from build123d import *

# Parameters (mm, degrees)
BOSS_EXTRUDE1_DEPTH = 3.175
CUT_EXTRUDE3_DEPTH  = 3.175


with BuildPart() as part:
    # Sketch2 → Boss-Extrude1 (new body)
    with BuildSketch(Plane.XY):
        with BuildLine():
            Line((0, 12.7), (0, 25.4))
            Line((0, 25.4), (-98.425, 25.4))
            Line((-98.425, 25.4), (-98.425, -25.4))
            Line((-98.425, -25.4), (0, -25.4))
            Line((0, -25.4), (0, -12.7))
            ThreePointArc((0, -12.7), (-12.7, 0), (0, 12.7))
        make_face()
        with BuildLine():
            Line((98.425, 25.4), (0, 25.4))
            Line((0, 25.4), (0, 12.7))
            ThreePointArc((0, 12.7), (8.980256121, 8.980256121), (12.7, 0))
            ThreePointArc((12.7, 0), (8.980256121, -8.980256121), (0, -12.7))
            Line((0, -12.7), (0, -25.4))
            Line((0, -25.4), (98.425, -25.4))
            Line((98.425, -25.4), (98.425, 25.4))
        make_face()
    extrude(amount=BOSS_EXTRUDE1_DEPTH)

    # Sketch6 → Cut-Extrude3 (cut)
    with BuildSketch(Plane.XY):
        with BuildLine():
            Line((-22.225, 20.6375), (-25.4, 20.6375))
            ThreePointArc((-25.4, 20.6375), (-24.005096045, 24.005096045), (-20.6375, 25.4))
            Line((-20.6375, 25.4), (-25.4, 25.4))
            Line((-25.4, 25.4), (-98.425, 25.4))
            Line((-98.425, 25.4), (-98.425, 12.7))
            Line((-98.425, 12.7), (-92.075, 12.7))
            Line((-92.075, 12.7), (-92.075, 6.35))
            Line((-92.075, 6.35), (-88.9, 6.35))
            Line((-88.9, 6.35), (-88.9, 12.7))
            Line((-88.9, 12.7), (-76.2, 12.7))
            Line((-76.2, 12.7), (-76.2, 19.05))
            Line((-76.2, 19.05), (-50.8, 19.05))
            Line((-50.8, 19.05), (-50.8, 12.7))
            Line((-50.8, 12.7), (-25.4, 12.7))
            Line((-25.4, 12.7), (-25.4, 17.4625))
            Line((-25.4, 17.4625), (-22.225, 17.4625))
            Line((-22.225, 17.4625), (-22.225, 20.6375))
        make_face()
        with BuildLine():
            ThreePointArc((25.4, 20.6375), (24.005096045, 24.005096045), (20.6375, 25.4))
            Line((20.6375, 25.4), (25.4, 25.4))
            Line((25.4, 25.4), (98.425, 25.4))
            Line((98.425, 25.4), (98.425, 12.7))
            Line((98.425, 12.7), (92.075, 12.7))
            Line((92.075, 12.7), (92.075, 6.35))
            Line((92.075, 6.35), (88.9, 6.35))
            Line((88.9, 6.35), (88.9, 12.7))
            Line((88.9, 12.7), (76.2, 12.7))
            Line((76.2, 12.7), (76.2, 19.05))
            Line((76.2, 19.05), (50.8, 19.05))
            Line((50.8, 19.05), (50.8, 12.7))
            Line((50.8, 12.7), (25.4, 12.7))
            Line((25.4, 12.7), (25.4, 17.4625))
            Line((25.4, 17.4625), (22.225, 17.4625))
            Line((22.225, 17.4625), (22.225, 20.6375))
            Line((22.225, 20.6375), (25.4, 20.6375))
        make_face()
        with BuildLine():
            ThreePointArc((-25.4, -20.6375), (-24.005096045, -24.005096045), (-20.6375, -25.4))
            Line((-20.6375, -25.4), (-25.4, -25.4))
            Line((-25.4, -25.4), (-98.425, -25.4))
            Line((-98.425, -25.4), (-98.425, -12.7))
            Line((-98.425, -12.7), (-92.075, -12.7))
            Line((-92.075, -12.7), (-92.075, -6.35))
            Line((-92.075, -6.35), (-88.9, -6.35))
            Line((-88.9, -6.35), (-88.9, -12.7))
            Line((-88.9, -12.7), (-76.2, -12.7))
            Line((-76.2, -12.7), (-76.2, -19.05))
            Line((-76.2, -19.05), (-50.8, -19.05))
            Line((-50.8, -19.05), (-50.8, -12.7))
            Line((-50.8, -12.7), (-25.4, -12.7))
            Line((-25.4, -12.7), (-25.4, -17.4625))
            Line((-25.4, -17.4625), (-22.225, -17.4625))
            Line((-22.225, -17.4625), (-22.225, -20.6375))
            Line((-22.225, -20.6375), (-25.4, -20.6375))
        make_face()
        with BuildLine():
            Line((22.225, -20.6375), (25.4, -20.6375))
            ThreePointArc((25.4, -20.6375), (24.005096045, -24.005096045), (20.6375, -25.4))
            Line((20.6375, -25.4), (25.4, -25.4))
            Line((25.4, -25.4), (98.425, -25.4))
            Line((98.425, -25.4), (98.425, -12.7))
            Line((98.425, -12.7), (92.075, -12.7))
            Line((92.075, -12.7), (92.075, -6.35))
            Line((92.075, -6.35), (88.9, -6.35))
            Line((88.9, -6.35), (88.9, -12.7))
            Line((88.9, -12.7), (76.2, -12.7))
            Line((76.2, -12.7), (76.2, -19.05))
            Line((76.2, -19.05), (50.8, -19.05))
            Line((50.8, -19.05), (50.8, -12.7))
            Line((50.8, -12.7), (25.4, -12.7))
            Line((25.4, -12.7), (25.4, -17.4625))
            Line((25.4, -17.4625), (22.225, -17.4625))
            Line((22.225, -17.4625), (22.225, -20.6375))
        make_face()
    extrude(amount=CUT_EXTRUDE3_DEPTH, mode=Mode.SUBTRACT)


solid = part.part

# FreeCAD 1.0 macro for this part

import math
import FreeCAD as App
import Part
import Sketcher
from FreeCAD import Vector
Q = App.Units.Quantity


def add_polygon(sketch, points):
    """Adds a closed chain of lines whose ends are joined by coincident constraints."""
    first, n = sketch.GeometryCount, len(points)
    for a, b in zip(points, points[1:] + points[:1]):
        sketch.addGeometry(Part.LineSegment(App.Vector(*a, 0), App.Vector(*b, 0)), False)
    for i in range(n):
        sketch.addConstraint(Sketcher.Constraint("Coincident", first + i, 2, first + (i + 1) % n, 1))

doc = App.newDocument("Part")
params = doc.addObject("Spreadsheet::Sheet", "Params")
for row, (alias, value) in enumerate([
    ("sketch1_radius", "0.5 in"),
    ("sketch1_height", "2 in"),
    ("sketch1_width", "7.75 in"),
    ("pad1_length", "0.125 in"),
    ("sketch2_width", "1 in"),
    ("sketch2_width2", "0.5 in"),
    ("sketch2_radius", "0.1875 in"),
    ("sketch2_width3", "0.25 in"),
    ("sketch2_width4", "0.125 in"),
    ("pocket1_length", "0.125 in"),
], start=1):
    params.set(f"A{row}", alias)
    params.set(f"B{row}", "=" + value)
    params.setAlias(f"B{row}", alias)

body = doc.addObject("PartDesign::Body", "Body")

# Sketch on XY plane
sketch1 = body.newObject("Sketcher::SketchObject", "Sketch")
sketch1.AttachmentSupport = (doc.getObject("XY_Plane"), [""])
sketch1.MapMode = "FlatFace"
add_polygon(sketch1, [(-98.425, 25.4), (-98.425, -25.4), (98.425, -25.4), (98.425, 25.4)])  # lines 0-3
sketch1.addGeometry(Part.ArcOfCircle(Part.Circle(Vector(0, 0, 0), Vector(0, 0, 1), 12.7), math.radians(90), math.radians(270)), False)  # 4
sketch1.addGeometry(Part.ArcOfCircle(Part.Circle(Vector(0, 0, 0), Vector(0, 0, 1), 12.7), math.radians(0), math.radians(90)), False)  # 5
sketch1.addGeometry(Part.ArcOfCircle(Part.Circle(Vector(0, 0, 0), Vector(0, 0, 1), 12.7), math.radians(-90), math.radians(0)), False)  # 6
sketch1.addConstraint([
    Sketcher.Constraint("Tangent", 4, 1, 5, 2),
    Sketcher.Constraint("Tangent", 5, 1, 6, 2),
    Sketcher.Constraint("Tangent", 6, 1, 4, 2),
    Sketcher.Constraint("Vertical", 0),
    Sketcher.Constraint("Horizontal", 1),
    Sketcher.Constraint("Vertical", 2),
    Sketcher.Constraint("Horizontal", 3),
    Sketcher.Constraint("Coincident", 4, 3, -1, 1),
    Sketcher.Constraint("Symmetric", 0, 2, 2, 2, -1, 1),
    Sketcher.Constraint("PointOnObject", 4, 1, -2),
    Sketcher.Constraint("PointOnObject", 5, 1, -1),
    Sketcher.Constraint("PointOnObject", 6, 1, -2),
    Sketcher.Constraint("Radius", 4, Q("0.5 in")),
    Sketcher.Constraint("DistanceY", 0, 2, 0, 1, Q("2 in")),
    Sketcher.Constraint("DistanceX", 1, 1, 1, 2, Q("7.75 in")),
])
sketch1.setExpression("Constraints[16]", "Params.sketch1_radius")
sketch1.setExpression("Constraints[17]", "Params.sketch1_height")
sketch1.setExpression("Constraints[18]", "Params.sketch1_width")
pad1 = body.newObject("PartDesign::Pad", "Pad")
pad1.Profile = sketch1
pad1.setExpression("Length", "Params.pad1_length")

# Sketch on XY plane
sketch2 = body.newObject("Sketcher::SketchObject", "Sketch001")
sketch2.AttachmentSupport = (doc.getObject("XY_Plane"), [""])
sketch2.MapMode = "FlatFace"
sketch2.addGeometry([
    Part.LineSegment(Vector(-22.225, 20.6375, 0), Vector(-25.4, 20.6375, 0)),  # 0
    Part.ArcOfCircle(Part.Circle(Vector(-20.6375, 20.6375, 0), Vector(0, 0, 1), 4.7625), math.radians(90), math.radians(180)),  # 1
    Part.LineSegment(Vector(-20.6375, 25.4, 0), Vector(-98.425, 25.4, 0)),  # 2
    Part.LineSegment(Vector(-98.425, 25.4, 0), Vector(-98.425, 12.7, 0)),  # 3
    Part.LineSegment(Vector(-98.425, 12.7, 0), Vector(-92.075, 12.7, 0)),  # 4
    Part.LineSegment(Vector(-92.075, 12.7, 0), Vector(-92.075, 6.35, 0)),  # 5
    Part.LineSegment(Vector(-92.075, 6.35, 0), Vector(-88.9, 6.35, 0)),  # 6
    Part.LineSegment(Vector(-88.9, 6.35, 0), Vector(-88.9, 12.7, 0)),  # 7
    Part.LineSegment(Vector(-88.9, 12.7, 0), Vector(-76.2, 12.7, 0)),  # 8
    Part.LineSegment(Vector(-76.2, 12.7, 0), Vector(-76.2, 19.05, 0)),  # 9
    Part.LineSegment(Vector(-76.2, 19.05, 0), Vector(-50.8, 19.05, 0)),  # 10
    Part.LineSegment(Vector(-50.8, 19.05, 0), Vector(-50.8, 12.7, 0)),  # 11
    Part.LineSegment(Vector(-50.8, 12.7, 0), Vector(-25.4, 12.7, 0)),  # 12
    Part.LineSegment(Vector(-25.4, 12.7, 0), Vector(-25.4, 17.4625, 0)),  # 13
    Part.LineSegment(Vector(-25.4, 17.4625, 0), Vector(-22.225, 17.4625, 0)),  # 14
    Part.LineSegment(Vector(-22.225, 17.4625, 0), Vector(-22.225, 20.6375, 0)),  # 15
    Part.ArcOfCircle(Part.Circle(Vector(20.6375, 20.6375, 0), Vector(0, 0, 1), 4.7625), math.radians(0), math.radians(90)),  # 16
    Part.LineSegment(Vector(25.4, 20.6375, 0), Vector(22.225, 20.6375, 0)),  # 17
    Part.LineSegment(Vector(22.225, 20.6375, 0), Vector(22.225, 17.4625, 0)),  # 18
    Part.LineSegment(Vector(22.225, 17.4625, 0), Vector(25.4, 17.4625, 0)),  # 19
    Part.LineSegment(Vector(25.4, 17.4625, 0), Vector(25.4, 12.7, 0)),  # 20
    Part.LineSegment(Vector(25.4, 12.7, 0), Vector(50.8, 12.7, 0)),  # 21
    Part.LineSegment(Vector(50.8, 12.7, 0), Vector(50.8, 19.05, 0)),  # 22
    Part.LineSegment(Vector(50.8, 19.05, 0), Vector(76.2, 19.05, 0)),  # 23
    Part.LineSegment(Vector(76.2, 19.05, 0), Vector(76.2, 12.7, 0)),  # 24
    Part.LineSegment(Vector(76.2, 12.7, 0), Vector(88.9, 12.7, 0)),  # 25
    Part.LineSegment(Vector(88.9, 12.7, 0), Vector(88.9, 6.35, 0)),  # 26
    Part.LineSegment(Vector(88.9, 6.35, 0), Vector(92.075, 6.35, 0)),  # 27
    Part.LineSegment(Vector(92.075, 6.35, 0), Vector(92.075, 12.7, 0)),  # 28
    Part.LineSegment(Vector(92.075, 12.7, 0), Vector(98.425, 12.7, 0)),  # 29
    Part.LineSegment(Vector(98.425, 12.7, 0), Vector(98.425, 25.4, 0)),  # 30
    Part.LineSegment(Vector(98.425, 25.4, 0), Vector(20.6375, 25.4, 0)),  # 31
    Part.ArcOfCircle(Part.Circle(Vector(-20.6375, -20.6375, 0), Vector(0, 0, 1), 4.7625), math.radians(-180), math.radians(-90)),  # 32
    Part.LineSegment(Vector(-25.4, -20.6375, 0), Vector(-22.225, -20.6375, 0)),  # 33
    Part.LineSegment(Vector(-22.225, -20.6375, 0), Vector(-22.225, -17.4625, 0)),  # 34
    Part.LineSegment(Vector(-22.225, -17.4625, 0), Vector(-25.4, -17.4625, 0)),  # 35
    Part.LineSegment(Vector(-25.4, -17.4625, 0), Vector(-25.4, -12.7, 0)),  # 36
    Part.LineSegment(Vector(-25.4, -12.7, 0), Vector(-50.8, -12.7, 0)),  # 37
    Part.LineSegment(Vector(-50.8, -12.7, 0), Vector(-50.8, -19.05, 0)),  # 38
    Part.LineSegment(Vector(-50.8, -19.05, 0), Vector(-76.2, -19.05, 0)),  # 39
    Part.LineSegment(Vector(-76.2, -19.05, 0), Vector(-76.2, -12.7, 0)),  # 40
    Part.LineSegment(Vector(-76.2, -12.7, 0), Vector(-88.9, -12.7, 0)),  # 41
    Part.LineSegment(Vector(-88.9, -12.7, 0), Vector(-88.9, -6.35, 0)),  # 42
    Part.LineSegment(Vector(-88.9, -6.35, 0), Vector(-92.075, -6.35, 0)),  # 43
    Part.LineSegment(Vector(-92.075, -6.35, 0), Vector(-92.075, -12.7, 0)),  # 44
    Part.LineSegment(Vector(-92.075, -12.7, 0), Vector(-98.425, -12.7, 0)),  # 45
    Part.LineSegment(Vector(-98.425, -12.7, 0), Vector(-98.425, -25.4, 0)),  # 46
    Part.LineSegment(Vector(-98.425, -25.4, 0), Vector(-20.6375, -25.4, 0)),  # 47
    Part.LineSegment(Vector(22.225, -20.6375, 0), Vector(25.4, -20.6375, 0)),  # 48
    Part.ArcOfCircle(Part.Circle(Vector(20.6375, -20.6375, 0), Vector(0, 0, 1), 4.7625), math.radians(-90), math.radians(0)),  # 49
    Part.LineSegment(Vector(20.6375, -25.4, 0), Vector(98.425, -25.4, 0)),  # 50
    Part.LineSegment(Vector(98.425, -25.4, 0), Vector(98.425, -12.7, 0)),  # 51
    Part.LineSegment(Vector(98.425, -12.7, 0), Vector(92.075, -12.7, 0)),  # 52
    Part.LineSegment(Vector(92.075, -12.7, 0), Vector(92.075, -6.35, 0)),  # 53
    Part.LineSegment(Vector(92.075, -6.35, 0), Vector(88.9, -6.35, 0)),  # 54
    Part.LineSegment(Vector(88.9, -6.35, 0), Vector(88.9, -12.7, 0)),  # 55
    Part.LineSegment(Vector(88.9, -12.7, 0), Vector(76.2, -12.7, 0)),  # 56
    Part.LineSegment(Vector(76.2, -12.7, 0), Vector(76.2, -19.05, 0)),  # 57
    Part.LineSegment(Vector(76.2, -19.05, 0), Vector(50.8, -19.05, 0)),  # 58
    Part.LineSegment(Vector(50.8, -19.05, 0), Vector(50.8, -12.7, 0)),  # 59
    Part.LineSegment(Vector(50.8, -12.7, 0), Vector(25.4, -12.7, 0)),  # 60
    Part.LineSegment(Vector(25.4, -12.7, 0), Vector(25.4, -17.4625, 0)),  # 61
    Part.LineSegment(Vector(25.4, -17.4625, 0), Vector(22.225, -17.4625, 0)),  # 62
    Part.LineSegment(Vector(22.225, -17.4625, 0), Vector(22.225, -20.6375, 0)),  # 63
], False)
sketch2.addConstraint([
    Sketcher.Constraint("Coincident", 0, 2, 1, 2),
    Sketcher.Constraint("Tangent", 1, 1, 2, 1),
    Sketcher.Constraint("Coincident", 2, 2, 3, 1),
    Sketcher.Constraint("Coincident", 3, 2, 4, 1),
    Sketcher.Constraint("Coincident", 4, 2, 5, 1),
    Sketcher.Constraint("Coincident", 5, 2, 6, 1),
    Sketcher.Constraint("Coincident", 6, 2, 7, 1),
    Sketcher.Constraint("Coincident", 7, 2, 8, 1),
    Sketcher.Constraint("Coincident", 8, 2, 9, 1),
    Sketcher.Constraint("Coincident", 9, 2, 10, 1),
    Sketcher.Constraint("Coincident", 10, 2, 11, 1),
    Sketcher.Constraint("Coincident", 11, 2, 12, 1),
    Sketcher.Constraint("Coincident", 12, 2, 13, 1),
    Sketcher.Constraint("Coincident", 13, 2, 14, 1),
    Sketcher.Constraint("Coincident", 14, 2, 15, 1),
    Sketcher.Constraint("Coincident", 15, 2, 0, 1),
    Sketcher.Constraint("Coincident", 16, 1, 17, 1),
    Sketcher.Constraint("Coincident", 17, 2, 18, 1),
    Sketcher.Constraint("Coincident", 18, 2, 19, 1),
    Sketcher.Constraint("Coincident", 19, 2, 20, 1),
    Sketcher.Constraint("Coincident", 20, 2, 21, 1),
    Sketcher.Constraint("Coincident", 21, 2, 22, 1),
    Sketcher.Constraint("Coincident", 22, 2, 23, 1),
    Sketcher.Constraint("Coincident", 23, 2, 24, 1),
    Sketcher.Constraint("Coincident", 24, 2, 25, 1),
    Sketcher.Constraint("Coincident", 25, 2, 26, 1),
    Sketcher.Constraint("Coincident", 26, 2, 27, 1),
    Sketcher.Constraint("Coincident", 27, 2, 28, 1),
    Sketcher.Constraint("Coincident", 28, 2, 29, 1),
    Sketcher.Constraint("Coincident", 29, 2, 30, 1),
    Sketcher.Constraint("Coincident", 30, 2, 31, 1),
    Sketcher.Constraint("Tangent", 31, 2, 16, 2),
    Sketcher.Constraint("Coincident", 32, 1, 33, 1),
    Sketcher.Constraint("Coincident", 33, 2, 34, 1),
    Sketcher.Constraint("Coincident", 34, 2, 35, 1),
    Sketcher.Constraint("Coincident", 35, 2, 36, 1),
    Sketcher.Constraint("Coincident", 36, 2, 37, 1),
    Sketcher.Constraint("Coincident", 37, 2, 38, 1),
    Sketcher.Constraint("Coincident", 38, 2, 39, 1),
    Sketcher.Constraint("Coincident", 39, 2, 40, 1),
    Sketcher.Constraint("Coincident", 40, 2, 41, 1),
    Sketcher.Constraint("Coincident", 41, 2, 42, 1),
    Sketcher.Constraint("Coincident", 42, 2, 43, 1),
    Sketcher.Constraint("Coincident", 43, 2, 44, 1),
    Sketcher.Constraint("Coincident", 44, 2, 45, 1),
    Sketcher.Constraint("Coincident", 45, 2, 46, 1),
    Sketcher.Constraint("Coincident", 46, 2, 47, 1),
    Sketcher.Constraint("Tangent", 47, 2, 32, 2),
    Sketcher.Constraint("Coincident", 48, 2, 49, 2),
    Sketcher.Constraint("Tangent", 49, 1, 50, 1),
    Sketcher.Constraint("Coincident", 50, 2, 51, 1),
    Sketcher.Constraint("Coincident", 51, 2, 52, 1),
    Sketcher.Constraint("Coincident", 52, 2, 53, 1),
    Sketcher.Constraint("Coincident", 53, 2, 54, 1),
    Sketcher.Constraint("Coincident", 54, 2, 55, 1),
    Sketcher.Constraint("Coincident", 55, 2, 56, 1),
    Sketcher.Constraint("Coincident", 56, 2, 57, 1),
    Sketcher.Constraint("Coincident", 57, 2, 58, 1),
    Sketcher.Constraint("Coincident", 58, 2, 59, 1),
    Sketcher.Constraint("Coincident", 59, 2, 60, 1),
    Sketcher.Constraint("Coincident", 60, 2, 61, 1),
    Sketcher.Constraint("Coincident", 61, 2, 62, 1),
    Sketcher.Constraint("Coincident", 62, 2, 63, 1),
    Sketcher.Constraint("Coincident", 63, 2, 48, 1),
    Sketcher.Constraint("Horizontal", 0),
    Sketcher.Constraint("Horizontal", 2),
    Sketcher.Constraint("Vertical", 3),
    Sketcher.Constraint("Horizontal", 4),
    Sketcher.Constraint("Vertical", 5),
    Sketcher.Constraint("Horizontal", 6),
    Sketcher.Constraint("Vertical", 7),
    Sketcher.Constraint("Horizontal", 8),
    Sketcher.Constraint("Vertical", 9),
    Sketcher.Constraint("Horizontal", 10),
    Sketcher.Constraint("Vertical", 11),
    Sketcher.Constraint("Horizontal", 12),
    Sketcher.Constraint("Vertical", 13),
    Sketcher.Constraint("Horizontal", 14),
    Sketcher.Constraint("Vertical", 15),
    Sketcher.Constraint("Horizontal", 17),
    Sketcher.Constraint("Vertical", 18),
    Sketcher.Constraint("Horizontal", 19),
    Sketcher.Constraint("Vertical", 20),
    Sketcher.Constraint("Horizontal", 21),
    Sketcher.Constraint("Vertical", 22),
    Sketcher.Constraint("Horizontal", 23),
    Sketcher.Constraint("Vertical", 24),
    Sketcher.Constraint("Horizontal", 25),
    Sketcher.Constraint("Vertical", 26),
    Sketcher.Constraint("Horizontal", 27),
    Sketcher.Constraint("Vertical", 28),
    Sketcher.Constraint("Horizontal", 29),
    Sketcher.Constraint("Vertical", 30),
    Sketcher.Constraint("Horizontal", 31),
    Sketcher.Constraint("Horizontal", 33),
    Sketcher.Constraint("Vertical", 34),
    Sketcher.Constraint("Horizontal", 35),
    Sketcher.Constraint("Vertical", 36),
    Sketcher.Constraint("Horizontal", 37),
    Sketcher.Constraint("Vertical", 38),
    Sketcher.Constraint("Horizontal", 39),
    Sketcher.Constraint("Vertical", 40),
    Sketcher.Constraint("Horizontal", 41),
    Sketcher.Constraint("Vertical", 42),
    Sketcher.Constraint("Horizontal", 43),
    Sketcher.Constraint("Vertical", 44),
    Sketcher.Constraint("Horizontal", 45),
    Sketcher.Constraint("Vertical", 46),
    Sketcher.Constraint("Horizontal", 47),
    Sketcher.Constraint("Horizontal", 48),
    Sketcher.Constraint("Horizontal", 50),
    Sketcher.Constraint("Vertical", 51),
    Sketcher.Constraint("Horizontal", 52),
    Sketcher.Constraint("Vertical", 53),
    Sketcher.Constraint("Horizontal", 54),
    Sketcher.Constraint("Vertical", 55),
    Sketcher.Constraint("Horizontal", 56),
    Sketcher.Constraint("Vertical", 57),
    Sketcher.Constraint("Horizontal", 58),
    Sketcher.Constraint("Vertical", 59),
    Sketcher.Constraint("Horizontal", 60),
    Sketcher.Constraint("Vertical", 61),
    Sketcher.Constraint("Horizontal", 62),
    Sketcher.Constraint("Vertical", 63),
    Sketcher.Constraint("Equal", 1, 16),
    Sketcher.Constraint("Equal", 16, 32),
    Sketcher.Constraint("Equal", 32, 49),
    Sketcher.Constraint("Symmetric", 16, 3, 32, 3, -1, 1),
    Sketcher.Constraint("Symmetric", 1, 3, 49, 3, -1, 1),
    Sketcher.Constraint("Symmetric", 17, 2, 33, 2, -1, 1),
    Sketcher.Constraint("Symmetric", 19, 2, 35, 2, -1, 1),
    Sketcher.Constraint("Symmetric", 21, 2, 37, 2, -1, 1),
    Sketcher.Constraint("Symmetric", 23, 2, 39, 2, -1, 1),
    Sketcher.Constraint("Symmetric", 25, 2, 41, 2, -1, 1),
    Sketcher.Constraint("Symmetric", 27, 2, 43, 2, -1, 1),
    Sketcher.Constraint("Symmetric", 29, 2, 45, 2, -1, 1),
    Sketcher.Constraint("Symmetric", 3, 2, 51, 2, -1, 1),
    Sketcher.Constraint("Symmetric", 5, 2, 53, 2, -1, 1),
    Sketcher.Constraint("Symmetric", 7, 2, 55, 2, -1, 1),
    Sketcher.Constraint("Symmetric", 9, 2, 57, 2, -1, 1),
    Sketcher.Constraint("Symmetric", 11, 2, 59, 2, -1, 1),
    Sketcher.Constraint("Symmetric", 13, 2, 61, 2, -1, 1),
    Sketcher.Constraint("Symmetric", 15, 2, 63, 2, -1, 1),
    Sketcher.Constraint("Symmetric", 1, 3, 16, 3, -2),
    Sketcher.Constraint("Symmetric", 15, 2, 17, 2, -2),
    Sketcher.Constraint("Symmetric", 13, 2, 19, 2, -2),
    Sketcher.Constraint("Symmetric", 11, 2, 21, 2, -2),
    Sketcher.Constraint("Symmetric", 9, 2, 23, 2, -2),
    Sketcher.Constraint("Symmetric", 7, 2, 25, 2, -2),
    Sketcher.Constraint("Symmetric", 5, 2, 27, 2, -2),
    Sketcher.Constraint("Symmetric", 3, 2, 29, 2, -2),
    Sketcher.Constraint("Horizontal", 16, 3, 0, 2),
    Sketcher.Constraint("Horizontal", 4, 2, 7, 2),
    Sketcher.Constraint("Horizontal", 8, 2, 11, 2),
    Sketcher.Constraint("Vertical", 0, 2, 12, 2),
    Sketcher.Constraint("Equal", 0, 6),
    Sketcher.Constraint("Equal", 10, 12),
    Sketcher.Constraint("Equal", 56, 3),
    Sketcher.Constraint("Equal", 52, 5),
    Sketcher.Constraint("Equal", 7, 9),
    Sketcher.Constraint("Equal", 62, 15),
    Sketcher.Constraint("DistanceX", 10, 1, 10, 2, Q("1 in")),
    Sketcher.Constraint("DistanceX", 8, 1, 8, 2, Q("0.5 in")),
    Sketcher.Constraint("DistanceX", 0, 2, -1, 1, Q("1 in")),
    Sketcher.Constraint("DistanceY", -1, 1, 1, 1, Q("1 in")),
    Sketcher.Constraint("Radius", 1, Q("0.1875 in")),
    Sketcher.Constraint("DistanceX", 4, 1, 4, 2, Q("0.25 in")),
    Sketcher.Constraint("DistanceX", 0, 2, 0, 1, Q("0.125 in")),
])
sketch2.setExpression("Constraints[161]", "Params.sketch2_width")
sketch2.setExpression("Constraints[162]", "Params.sketch2_width2")
sketch2.setExpression("Constraints[165]", "Params.sketch2_radius")
sketch2.setExpression("Constraints[166]", "Params.sketch2_width3")
sketch2.setExpression("Constraints[167]", "Params.sketch2_width4")
pocket1 = body.newObject("PartDesign::Pocket", "Pocket")
pocket1.Profile = sketch2
pocket1.setExpression("Length", "Params.pocket1_length")
pocket1.Reversed = True

doc.recompute()
